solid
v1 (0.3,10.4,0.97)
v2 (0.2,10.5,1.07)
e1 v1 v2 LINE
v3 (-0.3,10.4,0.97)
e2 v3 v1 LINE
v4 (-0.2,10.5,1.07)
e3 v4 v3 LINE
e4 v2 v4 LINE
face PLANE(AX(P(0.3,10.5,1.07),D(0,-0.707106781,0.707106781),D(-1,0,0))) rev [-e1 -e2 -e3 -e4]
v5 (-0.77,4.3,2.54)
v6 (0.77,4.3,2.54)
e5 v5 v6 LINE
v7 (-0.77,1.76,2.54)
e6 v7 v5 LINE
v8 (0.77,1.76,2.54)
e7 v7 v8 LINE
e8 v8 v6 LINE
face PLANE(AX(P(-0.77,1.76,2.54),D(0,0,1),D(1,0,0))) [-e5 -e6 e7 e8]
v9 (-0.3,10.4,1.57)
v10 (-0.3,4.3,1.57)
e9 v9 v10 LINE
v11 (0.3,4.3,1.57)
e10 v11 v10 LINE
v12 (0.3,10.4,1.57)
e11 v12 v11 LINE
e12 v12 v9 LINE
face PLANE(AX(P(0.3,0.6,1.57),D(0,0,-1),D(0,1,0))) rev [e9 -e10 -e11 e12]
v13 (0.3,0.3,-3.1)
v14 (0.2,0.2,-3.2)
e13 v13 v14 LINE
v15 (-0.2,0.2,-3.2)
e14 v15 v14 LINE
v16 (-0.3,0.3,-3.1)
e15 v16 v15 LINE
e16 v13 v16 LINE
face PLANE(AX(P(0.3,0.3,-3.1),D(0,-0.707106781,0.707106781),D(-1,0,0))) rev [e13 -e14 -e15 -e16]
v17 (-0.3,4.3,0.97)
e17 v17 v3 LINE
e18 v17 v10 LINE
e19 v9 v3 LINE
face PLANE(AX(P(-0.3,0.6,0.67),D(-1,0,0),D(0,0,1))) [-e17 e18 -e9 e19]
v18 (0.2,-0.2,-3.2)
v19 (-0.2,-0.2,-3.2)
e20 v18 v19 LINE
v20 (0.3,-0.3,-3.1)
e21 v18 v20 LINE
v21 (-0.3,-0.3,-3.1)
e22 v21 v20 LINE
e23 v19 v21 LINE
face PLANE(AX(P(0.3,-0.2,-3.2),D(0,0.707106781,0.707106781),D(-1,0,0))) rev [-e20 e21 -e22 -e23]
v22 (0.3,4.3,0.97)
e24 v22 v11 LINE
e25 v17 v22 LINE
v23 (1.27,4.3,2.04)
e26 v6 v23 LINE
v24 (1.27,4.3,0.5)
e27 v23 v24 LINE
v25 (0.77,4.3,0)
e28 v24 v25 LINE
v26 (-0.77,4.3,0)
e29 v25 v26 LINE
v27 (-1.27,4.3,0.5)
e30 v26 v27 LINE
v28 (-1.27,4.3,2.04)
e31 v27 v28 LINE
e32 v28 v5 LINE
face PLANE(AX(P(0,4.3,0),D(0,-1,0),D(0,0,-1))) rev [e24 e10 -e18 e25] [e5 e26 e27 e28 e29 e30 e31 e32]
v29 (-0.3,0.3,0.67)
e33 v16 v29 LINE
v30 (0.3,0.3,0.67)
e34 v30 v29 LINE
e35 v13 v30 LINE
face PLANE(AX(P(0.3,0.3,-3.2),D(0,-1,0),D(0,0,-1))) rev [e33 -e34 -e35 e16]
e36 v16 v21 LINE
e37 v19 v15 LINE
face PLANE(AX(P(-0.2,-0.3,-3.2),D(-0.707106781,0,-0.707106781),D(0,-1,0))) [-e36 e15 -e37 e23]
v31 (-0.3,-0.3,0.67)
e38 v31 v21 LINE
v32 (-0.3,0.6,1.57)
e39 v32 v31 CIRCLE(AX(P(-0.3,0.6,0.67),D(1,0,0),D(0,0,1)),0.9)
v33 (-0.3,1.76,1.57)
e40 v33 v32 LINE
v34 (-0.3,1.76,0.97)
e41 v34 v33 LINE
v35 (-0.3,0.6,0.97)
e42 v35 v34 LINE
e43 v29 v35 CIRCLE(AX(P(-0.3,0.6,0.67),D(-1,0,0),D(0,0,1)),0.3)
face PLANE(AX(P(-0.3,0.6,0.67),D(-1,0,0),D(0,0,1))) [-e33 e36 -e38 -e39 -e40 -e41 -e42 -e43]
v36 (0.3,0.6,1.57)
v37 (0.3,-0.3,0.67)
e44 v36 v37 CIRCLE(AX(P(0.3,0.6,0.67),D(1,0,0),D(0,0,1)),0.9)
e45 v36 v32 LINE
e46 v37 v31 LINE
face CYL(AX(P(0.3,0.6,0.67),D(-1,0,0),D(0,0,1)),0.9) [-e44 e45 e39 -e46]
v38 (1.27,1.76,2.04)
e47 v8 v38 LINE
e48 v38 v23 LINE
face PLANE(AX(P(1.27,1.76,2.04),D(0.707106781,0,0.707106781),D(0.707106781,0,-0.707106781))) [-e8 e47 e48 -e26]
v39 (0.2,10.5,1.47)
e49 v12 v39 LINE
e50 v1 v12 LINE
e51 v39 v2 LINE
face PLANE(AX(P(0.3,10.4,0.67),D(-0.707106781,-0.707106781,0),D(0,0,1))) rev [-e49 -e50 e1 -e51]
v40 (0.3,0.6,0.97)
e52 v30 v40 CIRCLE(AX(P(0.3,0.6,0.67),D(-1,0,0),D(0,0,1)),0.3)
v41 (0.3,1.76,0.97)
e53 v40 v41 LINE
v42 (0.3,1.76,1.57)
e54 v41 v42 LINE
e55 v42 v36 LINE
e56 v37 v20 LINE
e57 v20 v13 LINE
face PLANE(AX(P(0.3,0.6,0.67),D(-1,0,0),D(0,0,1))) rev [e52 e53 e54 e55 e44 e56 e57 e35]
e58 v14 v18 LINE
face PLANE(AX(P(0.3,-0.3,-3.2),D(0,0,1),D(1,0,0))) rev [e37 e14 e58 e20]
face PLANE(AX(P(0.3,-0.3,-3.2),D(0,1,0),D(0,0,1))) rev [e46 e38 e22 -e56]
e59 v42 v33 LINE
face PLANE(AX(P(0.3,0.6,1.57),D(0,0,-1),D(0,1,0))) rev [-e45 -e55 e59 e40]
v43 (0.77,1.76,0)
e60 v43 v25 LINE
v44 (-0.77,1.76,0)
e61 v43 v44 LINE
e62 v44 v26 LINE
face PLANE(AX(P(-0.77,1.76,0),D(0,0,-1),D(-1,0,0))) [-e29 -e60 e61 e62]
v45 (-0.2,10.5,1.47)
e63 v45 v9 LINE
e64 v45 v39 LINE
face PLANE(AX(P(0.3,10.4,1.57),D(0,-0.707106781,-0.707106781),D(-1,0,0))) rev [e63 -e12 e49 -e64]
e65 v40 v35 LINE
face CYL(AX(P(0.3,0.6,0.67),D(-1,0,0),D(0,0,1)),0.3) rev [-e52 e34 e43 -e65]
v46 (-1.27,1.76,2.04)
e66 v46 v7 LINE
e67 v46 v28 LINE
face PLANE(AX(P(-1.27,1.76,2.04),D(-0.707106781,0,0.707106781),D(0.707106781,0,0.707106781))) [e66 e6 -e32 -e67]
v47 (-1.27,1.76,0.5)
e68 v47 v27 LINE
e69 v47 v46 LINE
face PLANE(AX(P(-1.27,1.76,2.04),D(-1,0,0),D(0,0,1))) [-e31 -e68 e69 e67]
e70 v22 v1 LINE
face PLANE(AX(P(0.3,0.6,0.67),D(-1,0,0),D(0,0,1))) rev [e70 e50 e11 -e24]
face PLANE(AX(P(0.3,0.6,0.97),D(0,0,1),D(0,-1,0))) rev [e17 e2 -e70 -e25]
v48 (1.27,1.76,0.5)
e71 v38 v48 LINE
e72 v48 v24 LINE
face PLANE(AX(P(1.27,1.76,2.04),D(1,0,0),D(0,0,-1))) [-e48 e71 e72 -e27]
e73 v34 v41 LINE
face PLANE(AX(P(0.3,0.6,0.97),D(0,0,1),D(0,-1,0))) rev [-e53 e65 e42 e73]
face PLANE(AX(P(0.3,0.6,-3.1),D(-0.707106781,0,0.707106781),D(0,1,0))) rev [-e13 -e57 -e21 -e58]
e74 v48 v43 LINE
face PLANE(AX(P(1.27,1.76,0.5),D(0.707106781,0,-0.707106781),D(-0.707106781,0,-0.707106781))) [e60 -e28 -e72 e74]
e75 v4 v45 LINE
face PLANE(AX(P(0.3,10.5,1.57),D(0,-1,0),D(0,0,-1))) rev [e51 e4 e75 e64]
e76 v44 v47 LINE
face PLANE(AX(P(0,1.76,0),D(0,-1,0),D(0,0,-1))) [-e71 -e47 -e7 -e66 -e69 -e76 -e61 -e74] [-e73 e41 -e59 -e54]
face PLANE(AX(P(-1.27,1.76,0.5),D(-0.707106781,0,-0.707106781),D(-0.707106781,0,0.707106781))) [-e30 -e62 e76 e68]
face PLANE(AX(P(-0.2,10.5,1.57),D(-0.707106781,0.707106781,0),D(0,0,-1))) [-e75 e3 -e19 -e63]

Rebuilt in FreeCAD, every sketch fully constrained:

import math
import FreeCAD as App
import Part
import Sketcher
Q = App.Units.Quantity


def edges_at(feature, points):
    """Names of the edges that pass closest to the given points."""
    edges = feature.Shape.Edges
    near = lambda p: min(range(len(edges)), key=lambda i: edges[i].distToShape(Part.Vertex(*p))[0])
    return sorted({f"Edge{near(p) + 1}" for p in points})


def add_polygon(sketch, points):
    """Adds a closed chain of lines whose ends are joined by coincident constraints."""
    first, n = sketch.GeometryCount, len(points)
    for a, b in zip(points, points[1:] + points[:1]):
        sketch.addGeometry(Part.LineSegment(App.Vector(*a, 0), App.Vector(*b, 0)), False)
    for i in range(n):
        sketch.addConstraint(Sketcher.Constraint("Coincident", first + i, 2, first + (i + 1) % n, 1))

doc = App.newDocument("Part")
body = doc.addObject("PartDesign::Body", "Body")

sketch1 = body.newObject("Sketcher::SketchObject", "Sketch")
sketch1.AttachmentSupport = (doc.getObject("YZ_Plane"), [""])
sketch1.MapMode = "FlatFace"
sketch1.addGeometry([
    Part.LineSegment(App.Vector(-0.3, -3.2, 0), App.Vector(0.3, -3.2, 0)),
    Part.LineSegment(App.Vector(0.3, -3.2, 0), App.Vector(0.3, 0.67, 0)),
    Part.ArcOfCircle(Part.Circle(App.Vector(0.6, 0.67, 0), App.Vector(0, 0, 1), 0.3), math.radians(90), math.radians(180)),
    Part.LineSegment(App.Vector(0.6, 0.97, 0), App.Vector(10.5, 0.97, 0)),
    Part.LineSegment(App.Vector(10.5, 0.97, 0), App.Vector(10.5, 1.57, 0)),
    Part.LineSegment(App.Vector(10.5, 1.57, 0), App.Vector(0.6, 1.57, 0)),
    Part.ArcOfCircle(Part.Circle(App.Vector(0.6, 0.67, 0), App.Vector(0, 0, 1), 0.9), math.radians(90), math.radians(180)),
    Part.LineSegment(App.Vector(-0.3, 0.67, 0), App.Vector(-0.3, -3.2, 0)),
], False)
sketch1.addConstraint([
    Sketcher.Constraint("Coincident", 0, 2, 1, 1),
    Sketcher.Constraint("Tangent", 1, 2, 2, 2),
    Sketcher.Constraint("Tangent", 2, 1, 3, 1),
    Sketcher.Constraint("Coincident", 3, 2, 4, 1),
    Sketcher.Constraint("Coincident", 4, 2, 5, 1),
    Sketcher.Constraint("Tangent", 5, 2, 6, 1),
    Sketcher.Constraint("Tangent", 6, 2, 7, 1),
    Sketcher.Constraint("Coincident", 7, 2, 0, 1),
    Sketcher.Constraint("Horizontal", 0),
    Sketcher.Constraint("Vertical", 1),
    Sketcher.Constraint("Horizontal", 3),
    Sketcher.Constraint("Vertical", 4),
    Sketcher.Constraint("Horizontal", 5),
    Sketcher.Constraint("Vertical", 7),
    Sketcher.Constraint("Coincident", 6, 3, 2, 3),
    Sketcher.Constraint("Radius", 2, Q("0.3 mm")),
    Sketcher.Constraint("Radius", 6, Q("0.9 mm")),
    Sketcher.Constraint("DistanceX", 3, 1, 3, 2, Q("9.9 mm")),
    Sketcher.Constraint("DistanceY", 1, 1, 1, 2, Q("3.87 mm")),
    Sketcher.Constraint("DistanceX", -1, 1, 2, 3, Q("0.6 mm")),
    Sketcher.Constraint("DistanceY", 0, 2, -1, 1, Q("3.2 mm")),
])
pad1 = body.newObject("PartDesign::Pad", "Pad")
pad1.Profile = sketch1
pad1.Length = 0.6
pad1.Midplane = True
doc.recompute()

chamfer = body.newObject("PartDesign::Chamfer", "Chamfer")
chamfer.Base = (pad1, edges_at(pad1, [
    (0.3, 10.5, 1.27),
    (0, 0.3, -3.2),
    (0, -0.3, -3.2),
    (0, 10.5, 1.57),
    (0, 10.5, 0.97),
    (0.3, 0, -3.2),
    (-0.3, 0, -3.2),
    (-0.3, 10.5, 1.27),
]))
chamfer.Size = 0.1

sketch2 = body.newObject("Sketcher::SketchObject", "Sketch001")
sketch2.AttachmentSupport = (doc.getObject("XZ_Plane"), [""])
sketch2.MapMode = "FlatFace"
sketch2.AttachmentOffset = App.Placement(App.Vector(0, 0, -4.3), App.Rotation())
add_polygon(sketch2, [(-1.27, 0.5), (-1.27, 2.04), (-0.77, 2.54), (0.77, 2.54), (1.27, 2.04), (1.27, 0.5), (0.77, 0), (-0.77, 0)])
sketch2.addConstraint([
    Sketcher.Constraint("Vertical", 0),
    Sketcher.Constraint("Horizontal", 2),
    Sketcher.Constraint("Vertical", 4),
    Sketcher.Constraint("Horizontal", 6),
    Sketcher.Constraint("Symmetric", 5, 2, 6, 2, -1, 1),
    Sketcher.Constraint("Symmetric", 0, 2, 3, 2, -2),
    Sketcher.Constraint("Perpendicular", 1, 3),
    Sketcher.Constraint("Perpendicular", 3, 5),
    Sketcher.Constraint("Perpendicular", 5, 7),
    Sketcher.Constraint("Horizontal", 4, 2, 7, 2),
    Sketcher.Constraint("Vertical", 2, 2, 5, 2),
    Sketcher.Constraint("Equal", 6, 0),
    Sketcher.Constraint("DistanceX", 2, 1, 2, 2, Q("1.54 mm")),
    Sketcher.Constraint("DistanceY", -1, 1, 4, 2, Q("0.5 mm")),
])
pad2 = body.newObject("PartDesign::Pad", "Pad001")
pad2.Profile = sketch2
pad2.Length = 2.54

doc.recompute()
